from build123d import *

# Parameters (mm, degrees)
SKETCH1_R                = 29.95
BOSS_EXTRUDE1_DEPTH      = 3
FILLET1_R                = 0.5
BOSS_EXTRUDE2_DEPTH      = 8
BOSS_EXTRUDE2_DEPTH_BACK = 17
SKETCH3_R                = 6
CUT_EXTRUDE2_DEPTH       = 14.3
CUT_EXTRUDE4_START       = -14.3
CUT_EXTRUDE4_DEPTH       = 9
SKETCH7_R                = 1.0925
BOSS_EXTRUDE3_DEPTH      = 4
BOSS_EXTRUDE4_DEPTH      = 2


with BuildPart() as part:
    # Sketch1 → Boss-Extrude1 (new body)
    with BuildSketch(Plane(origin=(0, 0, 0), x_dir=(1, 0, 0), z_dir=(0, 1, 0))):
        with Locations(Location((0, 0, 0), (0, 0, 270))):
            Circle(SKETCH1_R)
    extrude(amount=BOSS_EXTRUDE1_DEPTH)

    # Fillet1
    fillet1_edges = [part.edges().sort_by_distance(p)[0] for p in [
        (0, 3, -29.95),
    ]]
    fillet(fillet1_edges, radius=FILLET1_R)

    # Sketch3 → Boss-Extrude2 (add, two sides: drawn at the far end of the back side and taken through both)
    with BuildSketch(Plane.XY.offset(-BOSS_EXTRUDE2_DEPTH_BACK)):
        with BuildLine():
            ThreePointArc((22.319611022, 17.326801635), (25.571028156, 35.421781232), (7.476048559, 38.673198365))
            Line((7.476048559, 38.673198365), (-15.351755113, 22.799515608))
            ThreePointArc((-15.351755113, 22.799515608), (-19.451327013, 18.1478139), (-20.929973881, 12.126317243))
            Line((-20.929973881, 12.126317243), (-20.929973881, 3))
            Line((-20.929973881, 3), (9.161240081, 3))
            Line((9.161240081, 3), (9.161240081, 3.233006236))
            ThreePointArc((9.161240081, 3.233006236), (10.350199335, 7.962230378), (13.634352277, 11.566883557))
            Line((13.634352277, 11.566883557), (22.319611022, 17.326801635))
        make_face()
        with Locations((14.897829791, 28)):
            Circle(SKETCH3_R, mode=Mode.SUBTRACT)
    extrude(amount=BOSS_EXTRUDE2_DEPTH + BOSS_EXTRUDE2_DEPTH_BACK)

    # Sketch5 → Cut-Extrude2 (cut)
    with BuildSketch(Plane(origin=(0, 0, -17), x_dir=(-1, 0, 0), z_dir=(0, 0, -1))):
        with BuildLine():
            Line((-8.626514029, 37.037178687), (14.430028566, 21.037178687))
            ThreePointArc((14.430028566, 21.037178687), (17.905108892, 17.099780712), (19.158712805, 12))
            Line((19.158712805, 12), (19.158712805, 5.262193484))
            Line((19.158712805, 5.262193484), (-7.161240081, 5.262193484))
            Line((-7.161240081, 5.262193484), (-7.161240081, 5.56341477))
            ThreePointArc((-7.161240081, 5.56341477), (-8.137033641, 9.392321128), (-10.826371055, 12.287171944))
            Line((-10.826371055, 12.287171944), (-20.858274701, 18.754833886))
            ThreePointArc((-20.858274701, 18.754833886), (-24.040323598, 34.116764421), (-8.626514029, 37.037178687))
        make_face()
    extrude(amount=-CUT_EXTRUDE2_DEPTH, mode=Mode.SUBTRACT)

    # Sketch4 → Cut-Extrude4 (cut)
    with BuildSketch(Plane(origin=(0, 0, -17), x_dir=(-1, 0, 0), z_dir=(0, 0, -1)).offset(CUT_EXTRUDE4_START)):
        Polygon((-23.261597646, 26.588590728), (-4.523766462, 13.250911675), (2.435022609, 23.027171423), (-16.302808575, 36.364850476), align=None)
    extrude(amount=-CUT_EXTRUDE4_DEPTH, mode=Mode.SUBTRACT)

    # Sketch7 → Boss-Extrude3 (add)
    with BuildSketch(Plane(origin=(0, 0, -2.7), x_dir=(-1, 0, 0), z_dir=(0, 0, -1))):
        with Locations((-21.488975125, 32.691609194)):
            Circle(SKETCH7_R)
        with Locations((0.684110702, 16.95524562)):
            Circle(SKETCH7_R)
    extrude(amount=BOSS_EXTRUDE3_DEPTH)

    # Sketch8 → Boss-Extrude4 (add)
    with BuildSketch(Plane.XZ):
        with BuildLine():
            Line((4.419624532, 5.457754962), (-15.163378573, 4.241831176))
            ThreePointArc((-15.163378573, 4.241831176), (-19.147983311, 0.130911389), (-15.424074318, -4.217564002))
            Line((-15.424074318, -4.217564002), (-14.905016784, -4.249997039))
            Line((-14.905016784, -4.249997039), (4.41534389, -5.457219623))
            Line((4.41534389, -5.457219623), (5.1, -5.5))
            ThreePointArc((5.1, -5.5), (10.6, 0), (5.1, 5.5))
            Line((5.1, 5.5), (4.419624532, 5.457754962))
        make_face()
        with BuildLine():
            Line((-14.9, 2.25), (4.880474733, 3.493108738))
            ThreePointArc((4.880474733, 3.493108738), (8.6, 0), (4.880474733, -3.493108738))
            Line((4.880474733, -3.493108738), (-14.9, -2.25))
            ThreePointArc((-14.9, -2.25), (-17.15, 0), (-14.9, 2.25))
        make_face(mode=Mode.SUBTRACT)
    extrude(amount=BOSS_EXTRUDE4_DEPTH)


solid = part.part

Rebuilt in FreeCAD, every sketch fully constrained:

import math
import FreeCAD as App
import Part
import Sketcher
from FreeCAD import Vector


def edges_at(feature, points):
    """Names of the edges that pass closest to the given points."""
    edges = feature.Shape.Edges
    near = lambda p: min(range(len(edges)), key=lambda i: edges[i].distToShape(Part.Vertex(*p))[0])
    return sorted({f"Edge{near(p) + 1}" for p in points})


def add_polygon(sketch, points):
    """Adds a closed chain of lines whose ends are joined by coincident constraints."""
    first, n = sketch.GeometryCount, len(points)
    for a, b in zip(points, points[1:] + points[:1]):
        sketch.addGeometry(Part.LineSegment(App.Vector(*a, 0), App.Vector(*b, 0)), False)
    for i in range(n):
        sketch.addConstraint(Sketcher.Constraint("Coincident", first + i, 2, first + (i + 1) % n, 1))

doc = App.newDocument("Part")
params = doc.addObject("Spreadsheet::Sheet", "Params")
for row, (alias, value) in enumerate([
    ("sketch1_diameter", "59.9 mm"),
    ("pad1_length", "3 mm"),
    ("fillet_radius", "0.5 mm"),
    ("sketch2_diameter", "12 mm"),
    ("sketch2_radius", "13 mm"),
    ("sketch2_radius2", "10 mm"),
    ("pad2_length", "8 mm"),
    ("pad2_length2", "17 mm"),
    ("sketch3_radius", "11 mm"),
    ("sketch3_radius2", "8 mm"),
    ("pocket1_length", "14.3 mm"),
    ("sketch4_length", "23 mm"),
    ("sketch4_length2", "12 mm"),
    ("pocket2_length", "9 mm"),
    ("pad3_length", "4 mm"),
    ("sketch6_radius", "5.5 mm"),
    ("sketch6_radius2", "3.5 mm"),
    ("sketch6_radius3", "4.25 mm"),
    ("sketch6_radius4", "2.25 mm"),
    ("pad4_length", "2 mm"),
], start=1):
    params.set(f"A{row}", alias)
    params.set(f"B{row}", "=" + value)
    params.setAlias(f"B{row}", alias)

body = doc.addObject("PartDesign::Body", "Body")

# Sketch on XZ plane
sketch1 = doc.addObject("Sketcher::SketchObject", "Sketch")
body.addObject(sketch1)
sketch1.AttachmentSupport = (doc.XZ_Plane, [""])
sketch1.MapMode = "FlatFace"
sketch1.addGeometry(Part.Circle(Vector(0, 0, 0), Vector(0, 0, 1), 30), False)
sketch1.addConstraint(Sketcher.Constraint("Coincident", 0, 3, -1, 1))
sketch1.addConstraint(Sketcher.Constraint("Diameter", 0, 59.9))
sketch1.setExpression("Constraints[1]", "Params.sketch1_diameter")
pad1 = doc.addObject("PartDesign::Pad", "Pad")
body.addObject(pad1)
pad1.Profile = sketch1
pad1.setExpression("Length", "Params.pad1_length")
pad1.Reversed = True
doc.recompute()

fillet = doc.addObject("PartDesign::Fillet", "Fillet")
body.addObject(fillet)
fillet.Base = (pad1, edges_at(pad1, [(0, 3, -29.95)]))
fillet.setExpression("Radius", "Params.fillet_radius")

# Sketch on XY plane
sketch2 = doc.addObject("Sketcher::SketchObject", "Sketch001")
body.addObject(sketch2)
sketch2.AttachmentSupport = (doc.XY_Plane, [""])
sketch2.MapMode = "FlatFace"
sketch2.addGeometry(Part.ArcOfCircle(Part.Circle(Vector(14.9, 28, 0), Vector(0, 0, 1), 13), math.radians(-55), math.radians(125)), False)
sketch2.addGeometry(Part.LineSegment(Vector(7.48, 38.67, 0), Vector(-15.35, 22.8, 0)), False)
sketch2.addGeometry(Part.ArcOfCircle(Part.Circle(Vector(-7.93, 12.13, 0), Vector(0, 0, 1), 13), math.radians(125), math.radians(180)), False)
sketch2.addGeometry(Part.LineSegment(Vector(-20.93, 12.13, 0), Vector(-20.93, 3, 0)), False)
sketch2.addGeometry(Part.LineSegment(Vector(-20.93, 3, 0), Vector(9.16, 3, 0)), False)
sketch2.addGeometry(Part.LineSegment(Vector(9.16, 3, 0), Vector(9.16, 3.23, 0)), False)
sketch2.addGeometry(Part.ArcOfCircle(Part.Circle(Vector(19.16, 3.23, 0), Vector(0, 0, 1), 10), math.radians(124), math.radians(180)), False)
sketch2.addGeometry(Part.LineSegment(Vector(13.63, 11.57, 0), Vector(22.32, 17.33, 0)), False)
sketch2.addGeometry(Part.Circle(Vector(14.9, 28, 0), Vector(0, 0, 1), 6), False)
sketch2.addConstraint(Sketcher.Constraint("Tangent", 0, 2, 1, 1))
sketch2.addConstraint(Sketcher.Constraint("Tangent", 1, 2, 2, 1))
sketch2.addConstraint(Sketcher.Constraint("Tangent", 2, 2, 3, 1))
sketch2.addConstraint(Sketcher.Constraint("Coincident", 3, 2, 4, 1))
sketch2.addConstraint(Sketcher.Constraint("Coincident", 4, 2, 5, 1))
sketch2.addConstraint(Sketcher.Constraint("Tangent", 5, 2, 6, 2))
sketch2.addConstraint(Sketcher.Constraint("Tangent", 6, 1, 7, 1))
sketch2.addConstraint(Sketcher.Constraint("Coincident", 7, 2, 0, 1))
sketch2.addConstraint(Sketcher.Constraint("Vertical", 3))
sketch2.addConstraint(Sketcher.Constraint("Horizontal", 4))
sketch2.addConstraint(Sketcher.Constraint("Vertical", 5))
sketch2.addConstraint(Sketcher.Constraint("Coincident", 8, 3, 0, 3))
sketch2.addConstraint(Sketcher.Constraint("Equal", 0, 2))
sketch2.addConstraint(Sketcher.Constraint("Diameter", 8, 12.0))
sketch2.addConstraint(Sketcher.Constraint("Radius", 0, 13.0))
sketch2.addConstraint(Sketcher.Constraint("Radius", 6, 10.0))
sketch2.addConstraint(Sketcher.Constraint("DistanceY", -1, 1, 0, 3, 28.0))
sketch2.addConstraint(Sketcher.Constraint("DistanceY", -1, 1, 3, 2, 3.0))
sketch2.addConstraint(Sketcher.Constraint("DistanceY", -1, 1, 0, 2, 38.673198))
sketch2.addConstraint(Sketcher.Constraint("DistanceY", -1, 1, 7, 2, 17.326802))
sketch2.addConstraint(Sketcher.Constraint("Distance", 1, 27.80436))
sketch2.addConstraint(Sketcher.Constraint("Distance", 7, 10.42163))
sketch2.addConstraint(Sketcher.Constraint("DistanceX", 4, 1, 4, 2, 30.091214))
sketch2.addConstraint(Sketcher.Constraint("DistanceX", -1, 1, 0, 3, 14.89783))
sketch2.setExpression("Constraints[13]", "Params.sketch2_diameter")
sketch2.setExpression("Constraints[14]", "Params.sketch2_radius")
sketch2.setExpression("Constraints[15]", "Params.sketch2_radius2")
pad2 = doc.addObject("PartDesign::Pad", "Pad001")
body.addObject(pad2)
pad2.Profile = sketch2
pad2.Type = "TwoLengths"
pad2.setExpression("Length", "Params.pad2_length")
pad2.setExpression("Length2", "Params.pad2_length2")

# Sketch on XY plane
sketch3 = doc.addObject("Sketcher::SketchObject", "Sketch002")
body.addObject(sketch3)
sketch3.AttachmentSupport = (doc.XY_Plane, [""])
sketch3.MapMode = "FlatFace"
sketch3.AttachmentOffset = App.Placement(Vector(0, 0, -17), App.Rotation())
sketch3.addGeometry(Part.LineSegment(Vector(-14.43, 21.04, 0), Vector(8.63, 37.04, 0)), False)
sketch3.addGeometry(Part.ArcOfCircle(Part.Circle(Vector(14.9, 28, 0), Vector(0, 0, 1), 11), math.radians(-57), math.radians(125)), False)
sketch3.addGeometry(Part.LineSegment(Vector(20.86, 18.75, 0), Vector(10.83, 12.29, 0)), False)
sketch3.addGeometry(Part.ArcOfCircle(Part.Circle(Vector(15.16, 5.56, 0), Vector(0, 0, 1), 8), math.radians(123), math.radians(180)), False)
sketch3.addGeometry(Part.LineSegment(Vector(7.16, 5.56, 0), Vector(7.16, 5.26, 0)), False)
sketch3.addGeometry(Part.LineSegment(Vector(7.16, 5.26, 0), Vector(-19.16, 5.26, 0)), False)
sketch3.addGeometry(Part.LineSegment(Vector(-19.16, 5.26, 0), Vector(-19.16, 12, 0)), False)
sketch3.addGeometry(Part.ArcOfCircle(Part.Circle(Vector(-8.16, 12, 0), Vector(0, 0, 1), 11), math.radians(125), math.radians(180)), False)
sketch3.addConstraint(Sketcher.Constraint("Tangent", 0, 2, 1, 2))
sketch3.addConstraint(Sketcher.Constraint("Tangent", 1, 1, 2, 1))
sketch3.addConstraint(Sketcher.Constraint("Tangent", 2, 2, 3, 1))
sketch3.addConstraint(Sketcher.Constraint("Tangent", 3, 2, 4, 1))
sketch3.addConstraint(Sketcher.Constraint("Coincident", 4, 2, 5, 1))
sketch3.addConstraint(Sketcher.Constraint("Coincident", 5, 2, 6, 1))
sketch3.addConstraint(Sketcher.Constraint("Tangent", 6, 2, 7, 2))
sketch3.addConstraint(Sketcher.Constraint("Tangent", 7, 1, 0, 1))
sketch3.addConstraint(Sketcher.Constraint("Vertical", 4))
sketch3.addConstraint(Sketcher.Constraint("Horizontal", 5))
sketch3.addConstraint(Sketcher.Constraint("Vertical", 6))
sketch3.addConstraint(Sketcher.Constraint("Equal", 1, 7))
sketch3.addConstraint(Sketcher.Constraint("Radius", 1, 11.0))
sketch3.addConstraint(Sketcher.Constraint("Radius", 3, 8.0))
sketch3.addConstraint(Sketcher.Constraint("DistanceY", -1, 1, 1, 3, 28.0))
sketch3.addConstraint(Sketcher.Constraint("DistanceY", -1, 1, 7, 3, 12.0))
sketch3.addConstraint(Sketcher.Constraint("DistanceY", 4, 2, 4, 1, 0.301221))
sketch3.addConstraint(Sketcher.Constraint("DistanceX", 7, 1, 2, 2, 25.2564))
sketch3.addConstraint(Sketcher.Constraint("Distance", 2, 11.936069))
sketch3.addConstraint(Sketcher.Constraint("DistanceX", 5, 2, 5, 1, 26.319953))
sketch3.addConstraint(Sketcher.Constraint("DistanceX", -1, 1, 1, 3, 14.89783))
sketch3.setExpression("Constraints[12]", "Params.sketch3_radius")
sketch3.setExpression("Constraints[13]", "Params.sketch3_radius2")
pocket1 = doc.addObject("PartDesign::Pocket", "Pocket")
body.addObject(pocket1)
pocket1.Profile = sketch3
pocket1.setExpression("Length", "Params.pocket1_length")
pocket1.Reversed = True

# Sketch on XY plane
sketch4 = doc.addObject("Sketcher::SketchObject", "Sketch003")
body.addObject(sketch4)
sketch4.AttachmentSupport = (doc.XY_Plane, [""])
sketch4.MapMode = "FlatFace"
sketch4.AttachmentOffset = App.Placement(Vector(0, 0, -2.7), App.Rotation())
add_polygon(sketch4, [(23, 27), (5, 13), (-2, 23), (16, 36)])  # lines 0-3
sketch4.addConstraint(Sketcher.Constraint("Perpendicular", 0, 1))
sketch4.addConstraint(Sketcher.Constraint("Perpendicular", 1, 2))
sketch4.addConstraint(Sketcher.Constraint("Perpendicular", 2, 3))
sketch4.addConstraint(Sketcher.Constraint("Distance", 0, 23.0))
sketch4.addConstraint(Sketcher.Constraint("Distance", 1, 12.0))
sketch4.addConstraint(Sketcher.Constraint("DistanceY", -1, 1, 0, 2, 13.250912))
sketch4.addConstraint(Sketcher.Constraint("DistanceY", -1, 1, 1, 2, 23.027171))
sketch4.addConstraint(Sketcher.Constraint("DistanceX", -1, 1, 2, 2, 16.302809))
sketch4.setExpression("Constraints[7]", "Params.sketch4_length")
sketch4.setExpression("Constraints[8]", "Params.sketch4_length2")
pocket2 = doc.addObject("PartDesign::Pocket", "Pocket001")
body.addObject(pocket2)
pocket2.Profile = sketch4
pocket2.setExpression("Length", "Params.pocket2_length")
pocket2.Reversed = True

# Sketch on XY plane
sketch5 = doc.addObject("Sketcher::SketchObject", "Sketch004")
body.addObject(sketch5)
sketch5.AttachmentSupport = (doc.XY_Plane, [""])
sketch5.MapMode = "FlatFace"
sketch5.AttachmentOffset = App.Placement(Vector(0, 0, -2.7), App.Rotation())
sketch5.addGeometry(Part.Circle(Vector(21.5, 32.7, 0), Vector(0, 0, 1), 1.1), False)
sketch5.addGeometry(Part.Circle(Vector(-0.7, 17, 0), Vector(0, 0, 1), 1.1), False)
sketch5.addConstraint(Sketcher.Constraint("Equal", 0, 1))
sketch5.addConstraint(Sketcher.Constraint("Diameter", 0, 2.185))
sketch5.addConstraint(Sketcher.Constraint("DistanceY", -1, 1, 0, 3, 32.691609))
sketch5.addConstraint(Sketcher.Constraint("DistanceX", 1, 3, -1, 1, 0.684111))
sketch5.addConstraint(Sketcher.Constraint("DistanceX", -1, 1, 0, 3, 21.488975))
sketch5.addConstraint(Sketcher.Constraint("DistanceY", -1, 1, 1, 3, 16.955246))
pad3 = doc.addObject("PartDesign::Pad", "Pad002")
body.addObject(pad3)
pad3.Profile = sketch5
pad3.setExpression("Length", "Params.pad3_length")
pad3.Reversed = True

# Sketch on XZ plane
sketch6 = doc.addObject("Sketcher::SketchObject", "Sketch005")
body.addObject(sketch6)
sketch6.AttachmentSupport = (doc.XZ_Plane, [""])
sketch6.MapMode = "FlatFace"
sketch6.addGeometry(Part.LineSegment(Vector(4.4, 5.5, 0), Vector(-15.2, 4.2, 0)), False)
sketch6.addGeometry(Part.ArcOfCircle(Part.Circle(Vector(-14.9, 0, 0), Vector(0, 0, 1), 4.2), math.radians(94), math.radians(263)), False)
sketch6.addGeometry(Part.LineSegment(Vector(-15.4, -4.2, 0), Vector(-14.9, -4.2, 0)), False)
sketch6.addGeometry(Part.LineSegment(Vector(-14.9, -4.2, 0), Vector(4.4, -5.5, 0)), False)
sketch6.addGeometry(Part.LineSegment(Vector(4.4, -5.5, 0), Vector(5.1, -5.5, 0)), False)
sketch6.addGeometry(Part.ArcOfCircle(Part.Circle(Vector(5.1, 0, 0), Vector(0, 0, 1), 5.5), math.radians(-90), math.radians(90)), False)
sketch6.addGeometry(Part.LineSegment(Vector(5.1, 5.5, 0), Vector(4.4, 5.5, 0)), False)
sketch6.addGeometry(Part.ArcOfCircle(Part.Circle(Vector(-14.9, 0, 0), Vector(0, 0, 1), 2.2), math.radians(90), math.radians(270)), False)
sketch6.addGeometry(Part.LineSegment(Vector(-14.9, 2.2, 0), Vector(4.9, 3.5, 0)), False)
sketch6.addGeometry(Part.ArcOfCircle(Part.Circle(Vector(5.1, 0, 0), Vector(0, 0, 1), 3.5), math.radians(-94), math.radians(94)), False)
sketch6.addGeometry(Part.LineSegment(Vector(4.9, -3.5, 0), Vector(-14.9, -2.2, 0)), False)
sketch6.addConstraint(Sketcher.Constraint("Tangent", 0, 2, 1, 1))
sketch6.addConstraint(Sketcher.Constraint("Coincident", 1, 2, 2, 1))
sketch6.addConstraint(Sketcher.Constraint("Coincident", 2, 2, 3, 1))
sketch6.addConstraint(Sketcher.Constraint("Coincident", 3, 2, 4, 1))
sketch6.addConstraint(Sketcher.Constraint("Coincident", 4, 2, 5, 1))
sketch6.addConstraint(Sketcher.Constraint("Coincident", 5, 2, 6, 1))
sketch6.addConstraint(Sketcher.Constraint("Coincident", 6, 2, 0, 1))
sketch6.addConstraint(Sketcher.Constraint("Coincident", 7, 1, 8, 1))
sketch6.addConstraint(Sketcher.Constraint("Tangent", 8, 2, 9, 2))
sketch6.addConstraint(Sketcher.Constraint("Tangent", 9, 1, 10, 1))
sketch6.addConstraint(Sketcher.Constraint("Coincident", 10, 2, 7, 2))
sketch6.addConstraint(Sketcher.Constraint("Coincident", 7, 3, 1, 3))
sketch6.addConstraint(Sketcher.Constraint("Coincident", 9, 3, 5, 3))
sketch6.addConstraint(Sketcher.Constraint("Symmetric", 4, 2, 5, 2, -1))
sketch6.addConstraint(Sketcher.Constraint("Symmetric", 7, 1, 10, 2, -1))
sketch6.addConstraint(Sketcher.Constraint("Parallel", 2, 3))
sketch6.addConstraint(Sketcher.Constraint("Parallel", 3, 4))
sketch6.addConstraint(Sketcher.Constraint("Parallel", 0, 6))
sketch6.addConstraint(Sketcher.Constraint("Vertical", 9, 3, 4, 2))
sketch6.addConstraint(Sketcher.Constraint("Vertical", 1, 3, 7, 1))
sketch6.addConstraint(Sketcher.Constraint("Radius", 5, 5.5))
sketch6.addConstraint(Sketcher.Constraint("Radius", 9, 3.5))
sketch6.addConstraint(Sketcher.Constraint("Radius", 1, 4.25))
sketch6.addConstraint(Sketcher.Constraint("Radius", 7, 2.25))
sketch6.addConstraint(Sketcher.Constraint("DistanceX", 1, 3, 5, 3, 20.0))
sketch6.addConstraint(Sketcher.Constraint("DistanceX", 1, 3, -1, 1, 14.9))
sketch6.addConstraint(Sketcher.Constraint("Distance", 2, 0.52007))
sketch6.addConstraint(Sketcher.Constraint("Distance", 3, 19.35804))
sketch6.addConstraint(Sketcher.Constraint("Distance", 4, 0.685991))
sketch6.addConstraint(Sketcher.Constraint("DistanceX", 3, 2, 6, 2, 0.004281))
sketch6.setExpression("Constraints[20]", "Params.sketch6_radius")
sketch6.setExpression("Constraints[21]", "Params.sketch6_radius2")
sketch6.setExpression("Constraints[22]", "Params.sketch6_radius3")
sketch6.setExpression("Constraints[23]", "Params.sketch6_radius4")
pad4 = doc.addObject("PartDesign::Pad", "Pad003")
body.addObject(pad4)
pad4.Profile = sketch6
pad4.setExpression("Length", "Params.pad4_length")

doc.recompute()
